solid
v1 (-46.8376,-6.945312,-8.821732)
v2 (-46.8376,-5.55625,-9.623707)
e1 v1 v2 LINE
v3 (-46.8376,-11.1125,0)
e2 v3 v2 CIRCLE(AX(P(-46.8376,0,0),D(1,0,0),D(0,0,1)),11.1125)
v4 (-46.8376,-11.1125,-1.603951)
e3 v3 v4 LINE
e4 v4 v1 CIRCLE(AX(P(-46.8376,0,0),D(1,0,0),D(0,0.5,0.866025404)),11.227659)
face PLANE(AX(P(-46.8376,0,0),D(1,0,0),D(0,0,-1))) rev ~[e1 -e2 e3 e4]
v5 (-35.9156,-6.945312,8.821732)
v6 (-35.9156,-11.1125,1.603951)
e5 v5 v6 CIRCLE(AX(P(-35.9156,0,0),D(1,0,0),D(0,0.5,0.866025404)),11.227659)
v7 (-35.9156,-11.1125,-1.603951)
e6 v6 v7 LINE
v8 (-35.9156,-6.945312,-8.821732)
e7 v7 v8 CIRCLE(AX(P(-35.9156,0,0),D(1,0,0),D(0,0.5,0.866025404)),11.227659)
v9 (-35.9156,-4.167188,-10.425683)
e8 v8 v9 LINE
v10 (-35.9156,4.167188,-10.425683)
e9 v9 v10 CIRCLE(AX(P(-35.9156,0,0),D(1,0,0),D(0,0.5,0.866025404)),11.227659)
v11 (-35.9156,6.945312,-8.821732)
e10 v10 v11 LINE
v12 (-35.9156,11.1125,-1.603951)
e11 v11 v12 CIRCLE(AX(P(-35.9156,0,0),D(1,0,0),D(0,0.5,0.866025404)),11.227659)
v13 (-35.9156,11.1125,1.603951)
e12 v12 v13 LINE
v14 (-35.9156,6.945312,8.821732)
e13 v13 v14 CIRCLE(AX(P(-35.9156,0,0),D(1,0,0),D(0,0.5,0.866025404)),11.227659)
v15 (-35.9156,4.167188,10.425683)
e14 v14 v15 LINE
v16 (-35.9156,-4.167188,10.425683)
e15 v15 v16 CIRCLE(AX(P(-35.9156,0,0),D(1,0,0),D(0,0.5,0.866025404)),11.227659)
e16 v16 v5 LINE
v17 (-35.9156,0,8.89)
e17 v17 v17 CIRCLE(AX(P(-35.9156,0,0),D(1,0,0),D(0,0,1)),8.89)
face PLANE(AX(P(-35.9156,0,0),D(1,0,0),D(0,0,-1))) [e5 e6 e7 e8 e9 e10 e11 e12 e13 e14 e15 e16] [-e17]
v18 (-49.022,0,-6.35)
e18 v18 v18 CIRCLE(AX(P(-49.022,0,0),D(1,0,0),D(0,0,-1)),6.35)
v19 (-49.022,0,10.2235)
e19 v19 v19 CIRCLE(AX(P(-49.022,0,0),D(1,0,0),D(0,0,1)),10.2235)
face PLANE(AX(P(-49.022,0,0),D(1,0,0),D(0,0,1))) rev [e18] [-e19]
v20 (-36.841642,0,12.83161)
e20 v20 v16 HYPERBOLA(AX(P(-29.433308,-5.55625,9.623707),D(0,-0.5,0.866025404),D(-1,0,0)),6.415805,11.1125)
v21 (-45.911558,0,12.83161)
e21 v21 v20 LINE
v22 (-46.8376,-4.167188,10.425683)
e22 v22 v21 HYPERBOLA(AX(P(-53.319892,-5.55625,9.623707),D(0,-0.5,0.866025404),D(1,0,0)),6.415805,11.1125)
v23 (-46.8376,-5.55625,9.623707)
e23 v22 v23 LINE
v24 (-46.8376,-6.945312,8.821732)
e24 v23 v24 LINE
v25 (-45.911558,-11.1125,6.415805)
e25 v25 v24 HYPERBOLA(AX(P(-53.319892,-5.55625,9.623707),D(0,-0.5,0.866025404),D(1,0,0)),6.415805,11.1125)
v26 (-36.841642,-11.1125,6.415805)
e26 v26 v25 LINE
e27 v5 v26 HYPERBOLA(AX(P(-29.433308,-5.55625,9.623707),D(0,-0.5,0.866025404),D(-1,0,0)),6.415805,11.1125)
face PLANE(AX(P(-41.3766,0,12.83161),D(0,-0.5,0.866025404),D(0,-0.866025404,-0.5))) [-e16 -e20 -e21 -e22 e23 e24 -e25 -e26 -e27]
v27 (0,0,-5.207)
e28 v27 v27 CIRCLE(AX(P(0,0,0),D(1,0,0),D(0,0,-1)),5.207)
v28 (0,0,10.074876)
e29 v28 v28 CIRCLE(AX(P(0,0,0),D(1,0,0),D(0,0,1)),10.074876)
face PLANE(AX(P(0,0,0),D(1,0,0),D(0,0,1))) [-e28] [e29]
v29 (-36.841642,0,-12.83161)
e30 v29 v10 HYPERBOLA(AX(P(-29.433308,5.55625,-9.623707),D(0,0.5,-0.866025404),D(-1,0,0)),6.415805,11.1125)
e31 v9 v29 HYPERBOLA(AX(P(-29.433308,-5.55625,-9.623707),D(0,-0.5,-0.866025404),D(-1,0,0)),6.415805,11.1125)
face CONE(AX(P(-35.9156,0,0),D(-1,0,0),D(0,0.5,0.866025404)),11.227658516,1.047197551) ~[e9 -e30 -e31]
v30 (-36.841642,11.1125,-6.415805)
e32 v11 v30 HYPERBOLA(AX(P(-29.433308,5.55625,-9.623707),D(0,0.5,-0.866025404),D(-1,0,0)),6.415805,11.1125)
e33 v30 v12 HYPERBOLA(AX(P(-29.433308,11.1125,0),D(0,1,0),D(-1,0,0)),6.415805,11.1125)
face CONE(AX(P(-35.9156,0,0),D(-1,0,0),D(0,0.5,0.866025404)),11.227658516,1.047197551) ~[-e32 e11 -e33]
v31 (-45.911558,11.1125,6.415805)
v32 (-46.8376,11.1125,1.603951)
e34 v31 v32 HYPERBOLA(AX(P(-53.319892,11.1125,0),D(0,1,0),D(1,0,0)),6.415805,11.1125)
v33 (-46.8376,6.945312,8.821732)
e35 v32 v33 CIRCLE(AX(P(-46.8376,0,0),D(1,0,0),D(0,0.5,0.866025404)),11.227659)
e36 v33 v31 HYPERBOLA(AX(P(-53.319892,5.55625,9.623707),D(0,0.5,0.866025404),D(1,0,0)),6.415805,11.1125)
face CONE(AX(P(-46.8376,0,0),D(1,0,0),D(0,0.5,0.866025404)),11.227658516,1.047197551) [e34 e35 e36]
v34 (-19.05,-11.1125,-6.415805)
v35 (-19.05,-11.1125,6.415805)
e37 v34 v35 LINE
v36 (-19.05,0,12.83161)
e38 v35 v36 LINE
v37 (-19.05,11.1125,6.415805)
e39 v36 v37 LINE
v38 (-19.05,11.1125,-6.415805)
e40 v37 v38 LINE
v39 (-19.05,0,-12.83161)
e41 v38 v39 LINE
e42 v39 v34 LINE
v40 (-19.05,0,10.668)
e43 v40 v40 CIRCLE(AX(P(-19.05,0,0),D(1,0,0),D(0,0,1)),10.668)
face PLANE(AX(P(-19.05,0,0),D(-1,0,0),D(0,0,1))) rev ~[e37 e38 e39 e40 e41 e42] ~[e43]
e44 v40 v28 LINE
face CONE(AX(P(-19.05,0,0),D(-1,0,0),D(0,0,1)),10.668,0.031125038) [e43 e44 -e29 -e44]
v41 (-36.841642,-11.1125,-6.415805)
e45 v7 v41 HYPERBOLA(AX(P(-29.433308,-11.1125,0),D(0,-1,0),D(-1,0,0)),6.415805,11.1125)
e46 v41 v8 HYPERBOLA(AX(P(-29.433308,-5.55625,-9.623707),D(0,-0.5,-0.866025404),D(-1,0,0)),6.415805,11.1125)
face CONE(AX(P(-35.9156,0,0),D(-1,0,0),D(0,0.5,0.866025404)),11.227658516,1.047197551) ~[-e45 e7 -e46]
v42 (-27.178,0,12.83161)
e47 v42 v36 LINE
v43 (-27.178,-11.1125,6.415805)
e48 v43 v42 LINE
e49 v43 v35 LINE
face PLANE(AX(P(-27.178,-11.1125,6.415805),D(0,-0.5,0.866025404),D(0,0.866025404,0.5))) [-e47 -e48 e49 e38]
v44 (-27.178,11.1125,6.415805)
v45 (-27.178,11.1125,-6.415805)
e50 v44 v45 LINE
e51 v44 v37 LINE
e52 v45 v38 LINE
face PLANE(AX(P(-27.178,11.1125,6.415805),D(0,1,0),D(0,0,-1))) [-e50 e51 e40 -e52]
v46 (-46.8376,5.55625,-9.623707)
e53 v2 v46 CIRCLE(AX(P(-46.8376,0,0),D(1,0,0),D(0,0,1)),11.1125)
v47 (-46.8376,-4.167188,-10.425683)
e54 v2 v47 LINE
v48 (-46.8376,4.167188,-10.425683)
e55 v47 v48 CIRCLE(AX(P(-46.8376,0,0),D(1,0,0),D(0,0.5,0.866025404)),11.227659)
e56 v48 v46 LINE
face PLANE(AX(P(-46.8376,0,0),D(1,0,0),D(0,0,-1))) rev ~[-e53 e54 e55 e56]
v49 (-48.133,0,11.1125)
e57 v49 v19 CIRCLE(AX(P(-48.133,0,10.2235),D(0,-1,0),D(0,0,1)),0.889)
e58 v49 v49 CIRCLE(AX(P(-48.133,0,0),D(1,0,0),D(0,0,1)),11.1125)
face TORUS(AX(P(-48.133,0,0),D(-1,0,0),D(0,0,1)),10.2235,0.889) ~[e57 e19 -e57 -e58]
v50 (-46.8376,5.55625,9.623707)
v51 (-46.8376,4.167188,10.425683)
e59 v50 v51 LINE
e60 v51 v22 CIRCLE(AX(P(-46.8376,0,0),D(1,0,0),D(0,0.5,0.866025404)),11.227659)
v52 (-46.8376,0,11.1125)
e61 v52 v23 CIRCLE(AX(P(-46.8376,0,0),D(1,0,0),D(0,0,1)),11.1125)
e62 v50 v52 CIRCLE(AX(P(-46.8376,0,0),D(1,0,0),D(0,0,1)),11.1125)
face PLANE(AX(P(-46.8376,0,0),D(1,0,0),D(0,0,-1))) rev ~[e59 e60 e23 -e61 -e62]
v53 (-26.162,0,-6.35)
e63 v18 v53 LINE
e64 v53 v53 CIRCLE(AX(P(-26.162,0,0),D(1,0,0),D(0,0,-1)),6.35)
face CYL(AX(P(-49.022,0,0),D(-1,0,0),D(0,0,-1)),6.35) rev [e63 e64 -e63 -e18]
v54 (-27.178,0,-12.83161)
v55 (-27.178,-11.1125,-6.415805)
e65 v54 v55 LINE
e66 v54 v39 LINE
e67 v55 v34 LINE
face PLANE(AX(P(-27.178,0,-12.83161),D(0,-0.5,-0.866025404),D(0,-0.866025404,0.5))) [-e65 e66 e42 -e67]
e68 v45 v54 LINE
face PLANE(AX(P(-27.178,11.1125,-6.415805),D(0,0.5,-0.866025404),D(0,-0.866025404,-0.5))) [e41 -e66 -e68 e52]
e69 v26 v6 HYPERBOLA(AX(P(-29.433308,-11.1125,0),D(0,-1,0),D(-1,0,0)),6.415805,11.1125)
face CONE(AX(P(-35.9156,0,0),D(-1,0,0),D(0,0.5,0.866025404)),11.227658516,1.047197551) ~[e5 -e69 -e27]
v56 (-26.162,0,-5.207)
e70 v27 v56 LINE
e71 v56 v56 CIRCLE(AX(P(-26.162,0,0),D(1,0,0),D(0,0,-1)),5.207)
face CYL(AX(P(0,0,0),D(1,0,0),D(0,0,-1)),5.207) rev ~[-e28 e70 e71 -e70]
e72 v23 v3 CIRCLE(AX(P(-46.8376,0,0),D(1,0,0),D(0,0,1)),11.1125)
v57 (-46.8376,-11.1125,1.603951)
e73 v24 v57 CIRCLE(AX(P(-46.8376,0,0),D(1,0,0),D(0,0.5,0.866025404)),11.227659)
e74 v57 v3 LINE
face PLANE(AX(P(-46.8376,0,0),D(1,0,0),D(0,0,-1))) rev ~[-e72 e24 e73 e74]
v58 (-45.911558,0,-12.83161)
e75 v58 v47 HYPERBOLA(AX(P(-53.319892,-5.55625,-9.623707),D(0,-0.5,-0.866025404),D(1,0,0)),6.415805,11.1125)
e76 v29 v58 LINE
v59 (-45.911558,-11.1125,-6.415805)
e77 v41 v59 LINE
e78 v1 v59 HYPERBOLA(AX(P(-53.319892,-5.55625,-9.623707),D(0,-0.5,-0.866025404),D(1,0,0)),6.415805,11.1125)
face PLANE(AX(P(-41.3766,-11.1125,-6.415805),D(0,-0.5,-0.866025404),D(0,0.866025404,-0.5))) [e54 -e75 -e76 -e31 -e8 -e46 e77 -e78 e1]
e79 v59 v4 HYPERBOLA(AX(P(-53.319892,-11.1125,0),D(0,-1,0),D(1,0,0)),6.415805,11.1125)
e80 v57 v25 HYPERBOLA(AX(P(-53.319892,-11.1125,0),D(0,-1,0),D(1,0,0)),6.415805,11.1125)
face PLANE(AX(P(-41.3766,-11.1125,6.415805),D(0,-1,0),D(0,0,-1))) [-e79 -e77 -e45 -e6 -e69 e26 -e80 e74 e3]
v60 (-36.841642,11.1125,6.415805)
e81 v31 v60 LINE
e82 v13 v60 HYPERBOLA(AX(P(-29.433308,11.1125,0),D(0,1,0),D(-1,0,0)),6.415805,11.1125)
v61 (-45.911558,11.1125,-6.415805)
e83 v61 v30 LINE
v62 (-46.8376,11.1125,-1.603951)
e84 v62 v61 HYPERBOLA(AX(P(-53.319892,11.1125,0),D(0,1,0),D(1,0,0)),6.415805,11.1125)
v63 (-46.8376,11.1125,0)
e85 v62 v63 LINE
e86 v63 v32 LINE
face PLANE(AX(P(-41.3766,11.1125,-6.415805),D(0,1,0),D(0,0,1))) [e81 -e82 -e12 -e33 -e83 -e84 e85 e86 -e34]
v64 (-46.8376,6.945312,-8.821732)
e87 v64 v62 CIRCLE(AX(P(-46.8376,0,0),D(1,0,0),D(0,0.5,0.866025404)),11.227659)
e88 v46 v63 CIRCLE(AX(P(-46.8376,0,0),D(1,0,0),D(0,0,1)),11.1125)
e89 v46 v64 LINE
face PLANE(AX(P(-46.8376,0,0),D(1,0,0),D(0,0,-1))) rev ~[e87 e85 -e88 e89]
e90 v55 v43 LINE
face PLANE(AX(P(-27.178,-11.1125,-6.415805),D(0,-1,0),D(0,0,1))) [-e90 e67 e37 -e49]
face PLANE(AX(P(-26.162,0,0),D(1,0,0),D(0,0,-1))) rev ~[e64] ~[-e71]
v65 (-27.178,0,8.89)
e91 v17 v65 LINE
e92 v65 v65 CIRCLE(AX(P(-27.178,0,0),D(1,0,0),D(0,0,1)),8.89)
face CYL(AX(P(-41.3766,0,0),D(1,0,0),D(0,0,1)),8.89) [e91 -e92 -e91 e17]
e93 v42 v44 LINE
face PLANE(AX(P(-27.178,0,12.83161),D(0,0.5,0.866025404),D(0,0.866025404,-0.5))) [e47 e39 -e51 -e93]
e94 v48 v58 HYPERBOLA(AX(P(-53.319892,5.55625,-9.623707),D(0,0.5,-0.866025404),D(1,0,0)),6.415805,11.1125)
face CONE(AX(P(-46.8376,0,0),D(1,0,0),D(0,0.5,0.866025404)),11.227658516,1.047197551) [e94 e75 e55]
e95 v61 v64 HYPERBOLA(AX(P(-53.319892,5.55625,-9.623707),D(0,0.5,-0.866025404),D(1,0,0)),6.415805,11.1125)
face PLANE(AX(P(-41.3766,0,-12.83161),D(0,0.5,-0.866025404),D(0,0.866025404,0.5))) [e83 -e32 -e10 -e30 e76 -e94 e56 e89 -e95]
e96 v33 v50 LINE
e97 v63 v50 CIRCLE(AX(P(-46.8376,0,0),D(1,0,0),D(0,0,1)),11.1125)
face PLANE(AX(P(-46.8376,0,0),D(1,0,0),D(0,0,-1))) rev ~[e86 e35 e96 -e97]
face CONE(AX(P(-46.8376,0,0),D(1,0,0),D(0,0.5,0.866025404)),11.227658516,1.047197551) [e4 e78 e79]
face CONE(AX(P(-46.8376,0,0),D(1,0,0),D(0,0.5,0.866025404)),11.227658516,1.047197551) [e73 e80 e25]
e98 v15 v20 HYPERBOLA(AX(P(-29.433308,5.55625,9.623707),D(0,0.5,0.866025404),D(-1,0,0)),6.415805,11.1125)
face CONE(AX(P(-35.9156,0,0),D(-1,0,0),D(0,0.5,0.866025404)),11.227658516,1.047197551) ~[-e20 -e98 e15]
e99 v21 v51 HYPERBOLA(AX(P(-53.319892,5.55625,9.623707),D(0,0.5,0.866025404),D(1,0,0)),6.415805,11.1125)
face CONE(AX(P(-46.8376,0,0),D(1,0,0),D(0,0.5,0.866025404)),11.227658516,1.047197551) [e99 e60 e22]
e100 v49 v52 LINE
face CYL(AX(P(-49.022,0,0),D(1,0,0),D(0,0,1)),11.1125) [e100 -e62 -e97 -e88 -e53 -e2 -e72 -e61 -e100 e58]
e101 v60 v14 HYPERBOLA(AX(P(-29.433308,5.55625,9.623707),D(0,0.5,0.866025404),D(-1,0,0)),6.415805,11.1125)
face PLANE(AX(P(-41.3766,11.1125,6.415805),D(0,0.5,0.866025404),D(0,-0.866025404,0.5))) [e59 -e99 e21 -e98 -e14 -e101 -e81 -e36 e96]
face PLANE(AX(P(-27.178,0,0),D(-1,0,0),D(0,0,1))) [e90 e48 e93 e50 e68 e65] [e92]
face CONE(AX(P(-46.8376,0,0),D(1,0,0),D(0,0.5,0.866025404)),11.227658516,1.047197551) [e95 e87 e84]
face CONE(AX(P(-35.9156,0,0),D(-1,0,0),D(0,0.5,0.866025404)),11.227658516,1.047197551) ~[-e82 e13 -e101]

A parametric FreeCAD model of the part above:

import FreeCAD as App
import Part
import Sketcher
Q = App.Units.Quantity


def edges_at(feature, points):
    """Names of the edges that pass closest to the given points."""
    edges = feature.Shape.Edges
    near = lambda p: min(range(len(edges)), key=lambda i: edges[i].distToShape(Part.Vertex(*p))[0])
    return sorted({f"Edge{near(p) + 1}" for p in points})


def add_polygon(sketch, points):
    """Adds a closed chain of lines whose ends are joined by coincident constraints."""
    first, n = sketch.GeometryCount, len(points)
    for a, b in zip(points, points[1:] + points[:1]):
        sketch.addGeometry(Part.LineSegment(App.Vector(*a, 0), App.Vector(*b, 0)), False)
    for i in range(n):
        sketch.addConstraint(Sketcher.Constraint("Coincident", first + i, 2, first + (i + 1) % n, 1))

doc = App.newDocument("Part")
body = doc.addObject("PartDesign::Body", "Body")

# Sketch on XY plane
sketch1 = body.newObject("Sketcher::SketchObject", "Sketch")
sketch1.AttachmentSupport = (doc.getObject("XY_Plane"), [""])
sketch1.MapMode = "FlatFace"
add_polygon(sketch1, [(-49, 11.1), (-49, 0), (0, 0), (0, 10.1), (-19.1, 10.7), (-27.2, 10.7), (-27.2, 8.9), (-41.4, 8.9), (-41.4, 11.1)])  # lines 0-8
sketch1.addConstraint([
    Sketcher.Constraint("Vertical", 0),
    Sketcher.Constraint("Horizontal", 1),
    Sketcher.Constraint("Vertical", 2),
    Sketcher.Constraint("Horizontal", 4),
    Sketcher.Constraint("Vertical", 5),
    Sketcher.Constraint("Horizontal", 6),
    Sketcher.Constraint("Vertical", 7),
    Sketcher.Constraint("Horizontal", 8),
    Sketcher.Constraint("Coincident", 1, 2, -1, 1),
    Sketcher.Constraint("DistanceX", 1, 1, 1, 2, Q("1.93 in")),
    Sketcher.Constraint("DistanceX", 4, 2, 4, 1, Q("0.32 in")),
    Sketcher.Constraint("DistanceY", 5, 2, 5, 1, Q("0.07 in")),
    Sketcher.Constraint("DistanceX", 6, 2, 6, 1, Q("0.559 in")),
    Sketcher.Constraint("DistanceX", 8, 2, 8, 1, Q("0.301 in")),
    Sketcher.Constraint("DistanceY", 0, 2, 0, 1, Q("0.4375 in")),
    Sketcher.Constraint("DistanceY", -1, 1, 3, 2, Q("0.42 in")),
    Sketcher.Constraint("Distance", 3, 19.059231),
])
revolution = body.newObject("PartDesign::Revolution", "Revolution")
revolution.Profile = sketch1
revolution.ReferenceAxis = (sketch1, ["H_Axis"])
revolution.Angle = 360

# Sketch on YZ plane
sketch2 = body.newObject("Sketcher::SketchObject", "Sketch001")
sketch2.AttachmentSupport = (doc.getObject("YZ_Plane"), [""])
sketch2.MapMode = "FlatFace"
sketch2.AttachmentOffset = App.Placement(App.Vector(0, 0, -1.629 * 25.4), App.Rotation())
add_polygon(sketch2, [(0, -13), (11, -6), (11, 6), (0, 13), (-11, 6), (-11, -6)])  # lines 0-5
sketch2.addConstraint([
    Sketcher.Constraint("Vertical", 1),
    Sketcher.Constraint("Vertical", 4),
    Sketcher.Constraint("Symmetric", 0, 2, 3, 2, -1, 1),
    Sketcher.Constraint("Symmetric", 2, 2, 5, 2, -1, 1),
    Sketcher.Constraint("PointOnObject", 2, 2, -2),
    Sketcher.Constraint("Parallel", 2, 5),
    Sketcher.Constraint("Horizontal", 1, 2, 3, 2),
    Sketcher.Constraint("Angle", 0, Q("30 deg")),
    Sketcher.Constraint("DistanceX", -1, 1, 0, 2, Q("0.4375 in")),
    Sketcher.Constraint("DistanceY", 1, 1, 1, 2, 12.83161),
])
pad1 = body.newObject("PartDesign::Pad", "Pad")
pad1.Profile = sketch2
pad1.Length = Q("0.43 in")
pad1.Midplane = True

# Sketch on YZ plane
sketch3 = body.newObject("Sketcher::SketchObject", "Sketch002")
sketch3.AttachmentSupport = (doc.getObject("YZ_Plane"), [""])
sketch3.MapMode = "FlatFace"
sketch3.AttachmentOffset = App.Placement(App.Vector(0, 0, -1.07 * 25.4), App.Rotation())
add_polygon(sketch3, [(0, 13), (11, 6), (11, -6), (0, -13), (-11, -6), (-11, 6)])  # lines 0-5
sketch3.addConstraint([
    Sketcher.Constraint("Vertical", 1),
    Sketcher.Constraint("Vertical", 4),
    Sketcher.Constraint("Symmetric", 0, 2, 3, 2, -1, 1),
    Sketcher.Constraint("Symmetric", 2, 2, 5, 2, -1, 1),
    Sketcher.Constraint("PointOnObject", 2, 2, -2),
    Sketcher.Constraint("Parallel", 2, 5),
    Sketcher.Constraint("Horizontal", 1, 2, 3, 2),
    Sketcher.Constraint("Angle", 0, Q("-30 deg")),
    Sketcher.Constraint("DistanceX", -1, 1, 0, 2, Q("0.4375 in")),
    Sketcher.Constraint("DistanceY", 1, 2, 1, 1, 12.83161),
])
pad2 = body.newObject("PartDesign::Pad", "Pad001")
pad2.Profile = sketch3
pad2.Length = Q("0.32 in")
doc.recompute()

fillet = body.newObject("PartDesign::Fillet", "Fillet")
fillet.Base = (pad2, edges_at(pad2, [(-49.022, 0, -11.113)]))
fillet.Radius = Q("0.035 in")

# Sketch on XZ plane
sketch4 = body.newObject("Sketcher::SketchObject", "Sketch003")
sketch4.AttachmentSupport = (doc.getObject("XZ_Plane"), [""])
sketch4.MapMode = "FlatFace"
add_polygon(sketch4, [(-46.8, -11.2), (-45.9, -12.8), (-46.8, -12.8)])  # lines 0-2
add_polygon(sketch4, [(-36.8, -12.8), (-35.9, -11.2), (-35.9, -12.8)])  # lines 3-5
sketch4.addConstraint([
    Sketcher.Constraint("Horizontal", 1),
    Sketcher.Constraint("Vertical", 2),
    Sketcher.Constraint("Vertical", 4),
    Sketcher.Constraint("Horizontal", 5),
    Sketcher.Constraint("Horizontal", 2, 2, 3, 2),
    Sketcher.Constraint("Horizontal", 1, 2, 4, 2),
    Sketcher.Constraint("Equal", 1, 5),
    Sketcher.Constraint("Angle", 0, Q("-60 deg")),
    Sketcher.Constraint("DistanceX", 2, 2, 3, 2, Q("0.43 in")),
    Sketcher.Constraint("DistanceX", 1, 2, -1, 1, Q("1.844 in")),
    Sketcher.Constraint("DistanceX", 1, 2, 1, 1, 0.926042),
    Sketcher.Constraint("DistanceY", 0, 2, -1, 1, 12.83161),
])
groove = body.newObject("PartDesign::Groove", "Groove")
groove.Profile = sketch4
groove.ReferenceAxis = (sketch4, ["H_Axis"])
groove.Angle = 360

# Sketch on YZ plane
sketch5 = body.newObject("Sketcher::SketchObject", "Sketch004")
sketch5.AttachmentSupport = (doc.getObject("YZ_Plane"), [""])
sketch5.MapMode = "FlatFace"
sketch5.AttachmentOffset = App.Placement(App.Vector(0, 0, -1.93 * 25.4), App.Rotation())
sketch5.addGeometry(Part.Circle(App.Vector(0, 0, 0), App.Vector(0, 0, 1), 6), False)
sketch5.addConstraint([
    Sketcher.Constraint("Coincident", 0, 3, -1, 1),
    Sketcher.Constraint("Diameter", 0, Q("0.5 in")),
])
pocket1 = body.newObject("PartDesign::Pocket", "Pocket")
pocket1.Profile = sketch5
pocket1.Length = Q("0.9 in")
pocket1.Reversed = True

# Sketch on YZ plane
sketch6 = body.newObject("Sketcher::SketchObject", "Sketch005")
sketch6.AttachmentSupport = (doc.getObject("YZ_Plane"), [""])
sketch6.MapMode = "FlatFace"
sketch6.addGeometry(Part.Circle(App.Vector(0, 0, 0), App.Vector(0, 0, 1), 5), False)
sketch6.addConstraint([
    Sketcher.Constraint("Coincident", 0, 3, -1, 1),
    Sketcher.Constraint("Diameter", 0, Q("0.41 in")),
])
pocket2 = body.newObject("PartDesign::Pocket", "Pocket001")
pocket2.Profile = sketch6
pocket2.Length = Q("1.03 in")

doc.recompute()
